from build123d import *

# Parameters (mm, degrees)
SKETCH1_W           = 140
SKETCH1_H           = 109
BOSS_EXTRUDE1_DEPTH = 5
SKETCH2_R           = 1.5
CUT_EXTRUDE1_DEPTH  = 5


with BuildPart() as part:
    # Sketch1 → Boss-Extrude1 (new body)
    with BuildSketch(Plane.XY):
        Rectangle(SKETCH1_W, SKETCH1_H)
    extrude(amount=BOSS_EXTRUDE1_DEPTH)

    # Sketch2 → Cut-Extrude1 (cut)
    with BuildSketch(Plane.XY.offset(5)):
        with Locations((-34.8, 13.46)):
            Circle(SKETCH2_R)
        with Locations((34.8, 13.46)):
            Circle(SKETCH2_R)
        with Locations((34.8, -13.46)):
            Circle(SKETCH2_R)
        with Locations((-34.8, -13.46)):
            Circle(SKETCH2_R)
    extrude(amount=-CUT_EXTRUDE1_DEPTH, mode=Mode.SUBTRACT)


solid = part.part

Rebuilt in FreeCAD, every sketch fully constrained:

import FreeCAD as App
import Part
import Sketcher

V = App.Vector


def add_polygon(sketch, points):
    """Adds a closed chain of lines whose ends are joined by coincident constraints."""
    first, n = sketch.GeometryCount, len(points)
    for a, b in zip(points, points[1:] + points[:1]):
        sketch.addGeometry(Part.LineSegment(App.Vector(*a, 0), App.Vector(*b, 0)), False)
    for i in range(n):
        sketch.addConstraint(Sketcher.Constraint("Coincident", first + i, 2, first + (i + 1) % n, 1))

doc = App.newDocument("Part")
body = doc.addObject("PartDesign::Body", "Body")

# Sketch on XY plane
sketch1 = body.newObject("Sketcher::SketchObject", "Sketch")
sketch1.AttachmentSupport = (doc.getObject("XY_Plane"), [""])
sketch1.MapMode = "FlatFace"
add_polygon(sketch1, [(-70, 54.5), (-70, -54.5), (70, -54.5), (70, 54.5)])  # lines 0-3
sketch1.addConstraint(Sketcher.Constraint("Vertical", 0))
sketch1.addConstraint(Sketcher.Constraint("Horizontal", 1))
sketch1.addConstraint(Sketcher.Constraint("Vertical", 2))
sketch1.addConstraint(Sketcher.Constraint("Horizontal", 3))
sketch1.addConstraint(Sketcher.Constraint("Symmetric", 0, 2, 2, 2, -1, 1))
sketch1.addConstraint(Sketcher.Constraint("DistanceX", 1, 1, 1, 2, 140.0))
sketch1.addConstraint(Sketcher.Constraint("DistanceY", 0, 2, 0, 1, 109.0))
pad1 = body.newObject("PartDesign::Pad", "Pad")
pad1.Profile = sketch1
pad1.Length = 5

# Sketch on XY plane
sketch2 = body.newObject("Sketcher::SketchObject", "Sketch001")
sketch2.AttachmentSupport = (doc.getObject("XY_Plane"), [""])
sketch2.MapMode = "FlatFace"
sketch2.AttachmentOffset = App.Placement(V(0, 0, 5), App.Rotation())
sketch2.addGeometry(Part.Circle(V(-34.8, 13.46, 0), V(0, 0, 1), 1.5), False)
sketch2.addGeometry(Part.Circle(V(34.8, 13.46, 0), V(0, 0, 1), 1.5), False)
sketch2.addGeometry(Part.Circle(V(34.8, -13.46, 0), V(0, 0, 1), 1.5), False)
sketch2.addGeometry(Part.Circle(V(-34.8, -13.46, 0), V(0, 0, 1), 1.5), False)
sketch2.addConstraint(Sketcher.Constraint("Equal", 0, 1))
sketch2.addConstraint(Sketcher.Constraint("Equal", 1, 2))
sketch2.addConstraint(Sketcher.Constraint("Equal", 2, 3))
sketch2.addConstraint(Sketcher.Constraint("Symmetric", 0, 3, 2, 3, -1, 1))
sketch2.addConstraint(Sketcher.Constraint("Symmetric", 1, 3, 3, 3, -1, 1))
sketch2.addConstraint(Sketcher.Constraint("Symmetric", 0, 3, 1, 3, -2))
sketch2.addConstraint(Sketcher.Constraint("Diameter", 0, 3.0))
sketch2.addConstraint(Sketcher.Constraint("DistanceX", 0, 3, -1, 1, 34.8))
sketch2.addConstraint(Sketcher.Constraint("DistanceY", -1, 1, 0, 3, 13.46))
pocket1 = body.newObject("PartDesign::Pocket", "Pocket")
pocket1.Profile = sketch2
pocket1.Length = 5

doc.recompute()
